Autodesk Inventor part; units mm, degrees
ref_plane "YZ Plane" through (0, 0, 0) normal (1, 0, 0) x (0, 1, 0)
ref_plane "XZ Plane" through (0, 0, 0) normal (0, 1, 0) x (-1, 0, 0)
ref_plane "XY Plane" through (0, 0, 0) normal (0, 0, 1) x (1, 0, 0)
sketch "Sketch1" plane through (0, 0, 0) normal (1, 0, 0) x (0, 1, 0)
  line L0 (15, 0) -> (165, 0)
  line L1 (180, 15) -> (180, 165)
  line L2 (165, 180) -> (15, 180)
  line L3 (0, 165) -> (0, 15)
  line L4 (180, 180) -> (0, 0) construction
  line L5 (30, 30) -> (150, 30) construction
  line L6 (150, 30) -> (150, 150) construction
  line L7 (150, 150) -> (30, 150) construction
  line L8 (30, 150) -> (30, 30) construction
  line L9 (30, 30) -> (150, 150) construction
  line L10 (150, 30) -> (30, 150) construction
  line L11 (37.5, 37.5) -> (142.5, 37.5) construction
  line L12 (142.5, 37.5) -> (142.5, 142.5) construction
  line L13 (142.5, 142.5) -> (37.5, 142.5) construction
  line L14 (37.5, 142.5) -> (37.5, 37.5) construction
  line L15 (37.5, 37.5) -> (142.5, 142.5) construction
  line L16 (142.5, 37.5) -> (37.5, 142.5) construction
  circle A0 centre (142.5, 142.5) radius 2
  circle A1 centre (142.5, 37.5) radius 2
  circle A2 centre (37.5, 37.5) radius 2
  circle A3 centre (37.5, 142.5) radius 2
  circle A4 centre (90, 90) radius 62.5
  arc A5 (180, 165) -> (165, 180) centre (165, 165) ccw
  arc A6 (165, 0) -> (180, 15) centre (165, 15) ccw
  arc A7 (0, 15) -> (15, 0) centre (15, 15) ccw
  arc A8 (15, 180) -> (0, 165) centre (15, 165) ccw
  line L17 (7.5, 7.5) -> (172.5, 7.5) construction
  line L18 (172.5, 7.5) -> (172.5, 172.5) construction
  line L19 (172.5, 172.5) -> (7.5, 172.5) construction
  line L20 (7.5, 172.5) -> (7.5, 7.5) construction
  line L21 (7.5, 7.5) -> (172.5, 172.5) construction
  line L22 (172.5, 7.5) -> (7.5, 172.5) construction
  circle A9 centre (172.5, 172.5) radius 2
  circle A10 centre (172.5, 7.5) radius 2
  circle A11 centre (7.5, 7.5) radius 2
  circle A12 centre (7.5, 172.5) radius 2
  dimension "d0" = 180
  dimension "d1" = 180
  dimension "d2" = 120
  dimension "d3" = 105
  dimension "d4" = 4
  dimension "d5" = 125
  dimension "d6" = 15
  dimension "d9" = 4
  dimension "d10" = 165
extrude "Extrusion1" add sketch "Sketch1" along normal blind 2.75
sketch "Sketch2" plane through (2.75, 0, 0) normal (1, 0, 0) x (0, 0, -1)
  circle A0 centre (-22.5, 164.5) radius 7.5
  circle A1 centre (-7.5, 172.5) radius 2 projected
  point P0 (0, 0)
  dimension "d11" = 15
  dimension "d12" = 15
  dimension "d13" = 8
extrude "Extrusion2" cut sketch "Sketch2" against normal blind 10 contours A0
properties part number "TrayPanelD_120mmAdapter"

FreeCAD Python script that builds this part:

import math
import FreeCAD as App
import Part
import Sketcher

doc = App.newDocument("Part")
body = doc.addObject("PartDesign::Body", "Body")

sketch1 = doc.addObject("Sketcher::SketchObject", "Sketch")
body.addObject(sketch1)
sketch1.AttachmentSupport = (doc.YZ_Plane, [""])
sketch1.MapMode = "FlatFace"
sketch1.addGeometry(Part.ArcOfCircle(Part.Circle(App.Vector(15, 15, 0), App.Vector(0, 0, 1), 15), math.radians(180), math.radians(270)), False)
sketch1.addGeometry(Part.LineSegment(App.Vector(15, 0, 0), App.Vector(165, 0, 0)), False)
sketch1.addGeometry(Part.ArcOfCircle(Part.Circle(App.Vector(165, 15, 0), App.Vector(0, 0, 1), 15), math.radians(-90), math.radians(0)), False)
sketch1.addGeometry(Part.LineSegment(App.Vector(180, 15, 0), App.Vector(180, 165, 0)), False)
sketch1.addGeometry(Part.ArcOfCircle(Part.Circle(App.Vector(165, 165, 0), App.Vector(0, 0, 1), 15), math.radians(0), math.radians(90)), False)
sketch1.addGeometry(Part.LineSegment(App.Vector(165, 180, 0), App.Vector(15, 180, 0)), False)
sketch1.addGeometry(Part.ArcOfCircle(Part.Circle(App.Vector(15, 165, 0), App.Vector(0, 0, 1), 15), math.radians(90), math.radians(180)), False)
sketch1.addGeometry(Part.LineSegment(App.Vector(0, 165, 0), App.Vector(0, 15, 0)), False)
sketch1.addGeometry(Part.Circle(App.Vector(7.5, 7.5, 0), App.Vector(0, 0, 1), 2), False)
sketch1.addGeometry(Part.Circle(App.Vector(37.5, 37.5, 0), App.Vector(0, 0, 1), 2), False)
sketch1.addGeometry(Part.Circle(App.Vector(172.5, 7.5, 0), App.Vector(0, 0, 1), 2), False)
sketch1.addGeometry(Part.Circle(App.Vector(142.5, 37.5, 0), App.Vector(0, 0, 1), 2), False)
sketch1.addGeometry(Part.Circle(App.Vector(37.5, 142.5, 0), App.Vector(0, 0, 1), 2), False)
sketch1.addGeometry(Part.Circle(App.Vector(7.5, 172.5, 0), App.Vector(0, 0, 1), 2), False)
sketch1.addGeometry(Part.Circle(App.Vector(90, 90, 0), App.Vector(0, 0, 1), 62.5), False)
sketch1.addGeometry(Part.Circle(App.Vector(142.5, 142.5, 0), App.Vector(0, 0, 1), 2), False)
sketch1.addGeometry(Part.Circle(App.Vector(172.5, 172.5, 0), App.Vector(0, 0, 1), 2), False)
sketch1.addConstraint(Sketcher.Constraint("Tangent", 0, 2, 1, 1))
sketch1.addConstraint(Sketcher.Constraint("Tangent", 1, 2, 2, 1))
sketch1.addConstraint(Sketcher.Constraint("Tangent", 2, 2, 3, 1))
sketch1.addConstraint(Sketcher.Constraint("Tangent", 3, 2, 4, 1))
sketch1.addConstraint(Sketcher.Constraint("Tangent", 4, 2, 5, 1))
sketch1.addConstraint(Sketcher.Constraint("Tangent", 5, 2, 6, 1))
sketch1.addConstraint(Sketcher.Constraint("Tangent", 6, 2, 7, 1))
sketch1.addConstraint(Sketcher.Constraint("Tangent", 7, 2, 0, 1))
sketch1.addConstraint(Sketcher.Constraint("Horizontal", 1))
sketch1.addConstraint(Sketcher.Constraint("Vertical", 3))
sketch1.addConstraint(Sketcher.Constraint("Horizontal", 5))
sketch1.addConstraint(Sketcher.Constraint("Vertical", 7))
sketch1.addConstraint(Sketcher.Constraint("Equal", 0, 2))
sketch1.addConstraint(Sketcher.Constraint("Equal", 2, 4))
sketch1.addConstraint(Sketcher.Constraint("Equal", 4, 6))
sketch1.addConstraint(Sketcher.Constraint("Equal", 8, 9))
sketch1.addConstraint(Sketcher.Constraint("Equal", 9, 10))
sketch1.addConstraint(Sketcher.Constraint("Equal", 10, 11))
sketch1.addConstraint(Sketcher.Constraint("Equal", 11, 12))
sketch1.addConstraint(Sketcher.Constraint("Equal", 12, 13))
sketch1.addConstraint(Sketcher.Constraint("Equal", 13, 15))
sketch1.addConstraint(Sketcher.Constraint("Equal", 15, 16))
sketch1.addConstraint(Sketcher.Constraint("PointOnObject", 0, 2, -1))
sketch1.addConstraint(Sketcher.Constraint("PointOnObject", 6, 2, -2))
sketch1.addConstraint(Sketcher.Constraint("Horizontal", 8, 3, 10, 3))
sketch1.addConstraint(Sketcher.Constraint("Horizontal", 9, 3, 11, 3))
sketch1.addConstraint(Sketcher.Constraint("Horizontal", 12, 3, 15, 3))
sketch1.addConstraint(Sketcher.Constraint("Horizontal", 13, 3, 16, 3))
sketch1.addConstraint(Sketcher.Constraint("Vertical", 9, 3, 12, 3))
sketch1.addConstraint(Sketcher.Constraint("Vertical", 8, 3, 13, 3))
sketch1.addConstraint(Sketcher.Constraint("Vertical", 11, 3, 15, 3))
sketch1.addConstraint(Sketcher.Constraint("Vertical", 10, 3, 16, 3))
sketch1.addConstraint(Sketcher.Constraint("Equal", 5, 3))
sketch1.addConstraint(Sketcher.Constraint("Diameter", 8, 4.0))
sketch1.addConstraint(Sketcher.Constraint("Diameter", 14, 125.0))
sketch1.addConstraint(Sketcher.Constraint("Radius", 0, 15.0))
sketch1.addConstraint(Sketcher.Constraint("DistanceX", -1, 1, 2, 3, 165.0))
sketch1.addConstraint(Sketcher.Constraint("DistanceX", 8, 3, 10, 3, 165.0))
sketch1.addConstraint(Sketcher.Constraint("DistanceX", 9, 3, 11, 3, 105.0))
sketch1.addConstraint(Sketcher.Constraint("DistanceY", 9, 3, 12, 3, 105.0))
sketch1.addConstraint(Sketcher.Constraint("DistanceX", -1, 1, 14, 3, 90.0))
sketch1.addConstraint(Sketcher.Constraint("DistanceY", -1, 1, 14, 3, 90.0))
sketch1.addConstraint(Sketcher.Constraint("DistanceX", 8, 3, 9, 3, 30.0))
sketch1.addConstraint(Sketcher.Constraint("DistanceY", 8, 3, 9, 3, 30.0))
sketch1.addConstraint(Sketcher.Constraint("DistanceY", 12, 3, 13, 3, 30.0))
sketch1.addConstraint(Sketcher.Constraint("DistanceX", -1, 1, 8, 3, 7.5))
sketch1.addConstraint(Sketcher.Constraint("DistanceY", -1, 1, 8, 3, 7.5))
pad1 = doc.addObject("PartDesign::Pad", "Pad")
body.addObject(pad1)
pad1.Profile = sketch1
pad1.Length = 2.75

sketch2 = doc.addObject("Sketcher::SketchObject", "Sketch001")
body.addObject(sketch2)
sketch2.AttachmentSupport = (doc.YZ_Plane, [""])
sketch2.MapMode = "FlatFace"
sketch2.AttachmentOffset = App.Placement(App.Vector(0, 0, 2.75), App.Rotation())
sketch2.addGeometry(Part.Circle(App.Vector(164.5, 22.5, 0), App.Vector(0, 0, 1), 7.5), False)
sketch2.addConstraint(Sketcher.Constraint("Diameter", 0, 15.0))
sketch2.addConstraint(Sketcher.Constraint("DistanceX", -1, 1, 0, 3, 164.5))
sketch2.addConstraint(Sketcher.Constraint("DistanceY", -1, 1, 0, 3, 22.5))
pocket1 = doc.addObject("PartDesign::Pocket", "Pocket")
body.addObject(pocket1)
pocket1.Profile = sketch2
pocket1.Length = 10

doc.recompute()
